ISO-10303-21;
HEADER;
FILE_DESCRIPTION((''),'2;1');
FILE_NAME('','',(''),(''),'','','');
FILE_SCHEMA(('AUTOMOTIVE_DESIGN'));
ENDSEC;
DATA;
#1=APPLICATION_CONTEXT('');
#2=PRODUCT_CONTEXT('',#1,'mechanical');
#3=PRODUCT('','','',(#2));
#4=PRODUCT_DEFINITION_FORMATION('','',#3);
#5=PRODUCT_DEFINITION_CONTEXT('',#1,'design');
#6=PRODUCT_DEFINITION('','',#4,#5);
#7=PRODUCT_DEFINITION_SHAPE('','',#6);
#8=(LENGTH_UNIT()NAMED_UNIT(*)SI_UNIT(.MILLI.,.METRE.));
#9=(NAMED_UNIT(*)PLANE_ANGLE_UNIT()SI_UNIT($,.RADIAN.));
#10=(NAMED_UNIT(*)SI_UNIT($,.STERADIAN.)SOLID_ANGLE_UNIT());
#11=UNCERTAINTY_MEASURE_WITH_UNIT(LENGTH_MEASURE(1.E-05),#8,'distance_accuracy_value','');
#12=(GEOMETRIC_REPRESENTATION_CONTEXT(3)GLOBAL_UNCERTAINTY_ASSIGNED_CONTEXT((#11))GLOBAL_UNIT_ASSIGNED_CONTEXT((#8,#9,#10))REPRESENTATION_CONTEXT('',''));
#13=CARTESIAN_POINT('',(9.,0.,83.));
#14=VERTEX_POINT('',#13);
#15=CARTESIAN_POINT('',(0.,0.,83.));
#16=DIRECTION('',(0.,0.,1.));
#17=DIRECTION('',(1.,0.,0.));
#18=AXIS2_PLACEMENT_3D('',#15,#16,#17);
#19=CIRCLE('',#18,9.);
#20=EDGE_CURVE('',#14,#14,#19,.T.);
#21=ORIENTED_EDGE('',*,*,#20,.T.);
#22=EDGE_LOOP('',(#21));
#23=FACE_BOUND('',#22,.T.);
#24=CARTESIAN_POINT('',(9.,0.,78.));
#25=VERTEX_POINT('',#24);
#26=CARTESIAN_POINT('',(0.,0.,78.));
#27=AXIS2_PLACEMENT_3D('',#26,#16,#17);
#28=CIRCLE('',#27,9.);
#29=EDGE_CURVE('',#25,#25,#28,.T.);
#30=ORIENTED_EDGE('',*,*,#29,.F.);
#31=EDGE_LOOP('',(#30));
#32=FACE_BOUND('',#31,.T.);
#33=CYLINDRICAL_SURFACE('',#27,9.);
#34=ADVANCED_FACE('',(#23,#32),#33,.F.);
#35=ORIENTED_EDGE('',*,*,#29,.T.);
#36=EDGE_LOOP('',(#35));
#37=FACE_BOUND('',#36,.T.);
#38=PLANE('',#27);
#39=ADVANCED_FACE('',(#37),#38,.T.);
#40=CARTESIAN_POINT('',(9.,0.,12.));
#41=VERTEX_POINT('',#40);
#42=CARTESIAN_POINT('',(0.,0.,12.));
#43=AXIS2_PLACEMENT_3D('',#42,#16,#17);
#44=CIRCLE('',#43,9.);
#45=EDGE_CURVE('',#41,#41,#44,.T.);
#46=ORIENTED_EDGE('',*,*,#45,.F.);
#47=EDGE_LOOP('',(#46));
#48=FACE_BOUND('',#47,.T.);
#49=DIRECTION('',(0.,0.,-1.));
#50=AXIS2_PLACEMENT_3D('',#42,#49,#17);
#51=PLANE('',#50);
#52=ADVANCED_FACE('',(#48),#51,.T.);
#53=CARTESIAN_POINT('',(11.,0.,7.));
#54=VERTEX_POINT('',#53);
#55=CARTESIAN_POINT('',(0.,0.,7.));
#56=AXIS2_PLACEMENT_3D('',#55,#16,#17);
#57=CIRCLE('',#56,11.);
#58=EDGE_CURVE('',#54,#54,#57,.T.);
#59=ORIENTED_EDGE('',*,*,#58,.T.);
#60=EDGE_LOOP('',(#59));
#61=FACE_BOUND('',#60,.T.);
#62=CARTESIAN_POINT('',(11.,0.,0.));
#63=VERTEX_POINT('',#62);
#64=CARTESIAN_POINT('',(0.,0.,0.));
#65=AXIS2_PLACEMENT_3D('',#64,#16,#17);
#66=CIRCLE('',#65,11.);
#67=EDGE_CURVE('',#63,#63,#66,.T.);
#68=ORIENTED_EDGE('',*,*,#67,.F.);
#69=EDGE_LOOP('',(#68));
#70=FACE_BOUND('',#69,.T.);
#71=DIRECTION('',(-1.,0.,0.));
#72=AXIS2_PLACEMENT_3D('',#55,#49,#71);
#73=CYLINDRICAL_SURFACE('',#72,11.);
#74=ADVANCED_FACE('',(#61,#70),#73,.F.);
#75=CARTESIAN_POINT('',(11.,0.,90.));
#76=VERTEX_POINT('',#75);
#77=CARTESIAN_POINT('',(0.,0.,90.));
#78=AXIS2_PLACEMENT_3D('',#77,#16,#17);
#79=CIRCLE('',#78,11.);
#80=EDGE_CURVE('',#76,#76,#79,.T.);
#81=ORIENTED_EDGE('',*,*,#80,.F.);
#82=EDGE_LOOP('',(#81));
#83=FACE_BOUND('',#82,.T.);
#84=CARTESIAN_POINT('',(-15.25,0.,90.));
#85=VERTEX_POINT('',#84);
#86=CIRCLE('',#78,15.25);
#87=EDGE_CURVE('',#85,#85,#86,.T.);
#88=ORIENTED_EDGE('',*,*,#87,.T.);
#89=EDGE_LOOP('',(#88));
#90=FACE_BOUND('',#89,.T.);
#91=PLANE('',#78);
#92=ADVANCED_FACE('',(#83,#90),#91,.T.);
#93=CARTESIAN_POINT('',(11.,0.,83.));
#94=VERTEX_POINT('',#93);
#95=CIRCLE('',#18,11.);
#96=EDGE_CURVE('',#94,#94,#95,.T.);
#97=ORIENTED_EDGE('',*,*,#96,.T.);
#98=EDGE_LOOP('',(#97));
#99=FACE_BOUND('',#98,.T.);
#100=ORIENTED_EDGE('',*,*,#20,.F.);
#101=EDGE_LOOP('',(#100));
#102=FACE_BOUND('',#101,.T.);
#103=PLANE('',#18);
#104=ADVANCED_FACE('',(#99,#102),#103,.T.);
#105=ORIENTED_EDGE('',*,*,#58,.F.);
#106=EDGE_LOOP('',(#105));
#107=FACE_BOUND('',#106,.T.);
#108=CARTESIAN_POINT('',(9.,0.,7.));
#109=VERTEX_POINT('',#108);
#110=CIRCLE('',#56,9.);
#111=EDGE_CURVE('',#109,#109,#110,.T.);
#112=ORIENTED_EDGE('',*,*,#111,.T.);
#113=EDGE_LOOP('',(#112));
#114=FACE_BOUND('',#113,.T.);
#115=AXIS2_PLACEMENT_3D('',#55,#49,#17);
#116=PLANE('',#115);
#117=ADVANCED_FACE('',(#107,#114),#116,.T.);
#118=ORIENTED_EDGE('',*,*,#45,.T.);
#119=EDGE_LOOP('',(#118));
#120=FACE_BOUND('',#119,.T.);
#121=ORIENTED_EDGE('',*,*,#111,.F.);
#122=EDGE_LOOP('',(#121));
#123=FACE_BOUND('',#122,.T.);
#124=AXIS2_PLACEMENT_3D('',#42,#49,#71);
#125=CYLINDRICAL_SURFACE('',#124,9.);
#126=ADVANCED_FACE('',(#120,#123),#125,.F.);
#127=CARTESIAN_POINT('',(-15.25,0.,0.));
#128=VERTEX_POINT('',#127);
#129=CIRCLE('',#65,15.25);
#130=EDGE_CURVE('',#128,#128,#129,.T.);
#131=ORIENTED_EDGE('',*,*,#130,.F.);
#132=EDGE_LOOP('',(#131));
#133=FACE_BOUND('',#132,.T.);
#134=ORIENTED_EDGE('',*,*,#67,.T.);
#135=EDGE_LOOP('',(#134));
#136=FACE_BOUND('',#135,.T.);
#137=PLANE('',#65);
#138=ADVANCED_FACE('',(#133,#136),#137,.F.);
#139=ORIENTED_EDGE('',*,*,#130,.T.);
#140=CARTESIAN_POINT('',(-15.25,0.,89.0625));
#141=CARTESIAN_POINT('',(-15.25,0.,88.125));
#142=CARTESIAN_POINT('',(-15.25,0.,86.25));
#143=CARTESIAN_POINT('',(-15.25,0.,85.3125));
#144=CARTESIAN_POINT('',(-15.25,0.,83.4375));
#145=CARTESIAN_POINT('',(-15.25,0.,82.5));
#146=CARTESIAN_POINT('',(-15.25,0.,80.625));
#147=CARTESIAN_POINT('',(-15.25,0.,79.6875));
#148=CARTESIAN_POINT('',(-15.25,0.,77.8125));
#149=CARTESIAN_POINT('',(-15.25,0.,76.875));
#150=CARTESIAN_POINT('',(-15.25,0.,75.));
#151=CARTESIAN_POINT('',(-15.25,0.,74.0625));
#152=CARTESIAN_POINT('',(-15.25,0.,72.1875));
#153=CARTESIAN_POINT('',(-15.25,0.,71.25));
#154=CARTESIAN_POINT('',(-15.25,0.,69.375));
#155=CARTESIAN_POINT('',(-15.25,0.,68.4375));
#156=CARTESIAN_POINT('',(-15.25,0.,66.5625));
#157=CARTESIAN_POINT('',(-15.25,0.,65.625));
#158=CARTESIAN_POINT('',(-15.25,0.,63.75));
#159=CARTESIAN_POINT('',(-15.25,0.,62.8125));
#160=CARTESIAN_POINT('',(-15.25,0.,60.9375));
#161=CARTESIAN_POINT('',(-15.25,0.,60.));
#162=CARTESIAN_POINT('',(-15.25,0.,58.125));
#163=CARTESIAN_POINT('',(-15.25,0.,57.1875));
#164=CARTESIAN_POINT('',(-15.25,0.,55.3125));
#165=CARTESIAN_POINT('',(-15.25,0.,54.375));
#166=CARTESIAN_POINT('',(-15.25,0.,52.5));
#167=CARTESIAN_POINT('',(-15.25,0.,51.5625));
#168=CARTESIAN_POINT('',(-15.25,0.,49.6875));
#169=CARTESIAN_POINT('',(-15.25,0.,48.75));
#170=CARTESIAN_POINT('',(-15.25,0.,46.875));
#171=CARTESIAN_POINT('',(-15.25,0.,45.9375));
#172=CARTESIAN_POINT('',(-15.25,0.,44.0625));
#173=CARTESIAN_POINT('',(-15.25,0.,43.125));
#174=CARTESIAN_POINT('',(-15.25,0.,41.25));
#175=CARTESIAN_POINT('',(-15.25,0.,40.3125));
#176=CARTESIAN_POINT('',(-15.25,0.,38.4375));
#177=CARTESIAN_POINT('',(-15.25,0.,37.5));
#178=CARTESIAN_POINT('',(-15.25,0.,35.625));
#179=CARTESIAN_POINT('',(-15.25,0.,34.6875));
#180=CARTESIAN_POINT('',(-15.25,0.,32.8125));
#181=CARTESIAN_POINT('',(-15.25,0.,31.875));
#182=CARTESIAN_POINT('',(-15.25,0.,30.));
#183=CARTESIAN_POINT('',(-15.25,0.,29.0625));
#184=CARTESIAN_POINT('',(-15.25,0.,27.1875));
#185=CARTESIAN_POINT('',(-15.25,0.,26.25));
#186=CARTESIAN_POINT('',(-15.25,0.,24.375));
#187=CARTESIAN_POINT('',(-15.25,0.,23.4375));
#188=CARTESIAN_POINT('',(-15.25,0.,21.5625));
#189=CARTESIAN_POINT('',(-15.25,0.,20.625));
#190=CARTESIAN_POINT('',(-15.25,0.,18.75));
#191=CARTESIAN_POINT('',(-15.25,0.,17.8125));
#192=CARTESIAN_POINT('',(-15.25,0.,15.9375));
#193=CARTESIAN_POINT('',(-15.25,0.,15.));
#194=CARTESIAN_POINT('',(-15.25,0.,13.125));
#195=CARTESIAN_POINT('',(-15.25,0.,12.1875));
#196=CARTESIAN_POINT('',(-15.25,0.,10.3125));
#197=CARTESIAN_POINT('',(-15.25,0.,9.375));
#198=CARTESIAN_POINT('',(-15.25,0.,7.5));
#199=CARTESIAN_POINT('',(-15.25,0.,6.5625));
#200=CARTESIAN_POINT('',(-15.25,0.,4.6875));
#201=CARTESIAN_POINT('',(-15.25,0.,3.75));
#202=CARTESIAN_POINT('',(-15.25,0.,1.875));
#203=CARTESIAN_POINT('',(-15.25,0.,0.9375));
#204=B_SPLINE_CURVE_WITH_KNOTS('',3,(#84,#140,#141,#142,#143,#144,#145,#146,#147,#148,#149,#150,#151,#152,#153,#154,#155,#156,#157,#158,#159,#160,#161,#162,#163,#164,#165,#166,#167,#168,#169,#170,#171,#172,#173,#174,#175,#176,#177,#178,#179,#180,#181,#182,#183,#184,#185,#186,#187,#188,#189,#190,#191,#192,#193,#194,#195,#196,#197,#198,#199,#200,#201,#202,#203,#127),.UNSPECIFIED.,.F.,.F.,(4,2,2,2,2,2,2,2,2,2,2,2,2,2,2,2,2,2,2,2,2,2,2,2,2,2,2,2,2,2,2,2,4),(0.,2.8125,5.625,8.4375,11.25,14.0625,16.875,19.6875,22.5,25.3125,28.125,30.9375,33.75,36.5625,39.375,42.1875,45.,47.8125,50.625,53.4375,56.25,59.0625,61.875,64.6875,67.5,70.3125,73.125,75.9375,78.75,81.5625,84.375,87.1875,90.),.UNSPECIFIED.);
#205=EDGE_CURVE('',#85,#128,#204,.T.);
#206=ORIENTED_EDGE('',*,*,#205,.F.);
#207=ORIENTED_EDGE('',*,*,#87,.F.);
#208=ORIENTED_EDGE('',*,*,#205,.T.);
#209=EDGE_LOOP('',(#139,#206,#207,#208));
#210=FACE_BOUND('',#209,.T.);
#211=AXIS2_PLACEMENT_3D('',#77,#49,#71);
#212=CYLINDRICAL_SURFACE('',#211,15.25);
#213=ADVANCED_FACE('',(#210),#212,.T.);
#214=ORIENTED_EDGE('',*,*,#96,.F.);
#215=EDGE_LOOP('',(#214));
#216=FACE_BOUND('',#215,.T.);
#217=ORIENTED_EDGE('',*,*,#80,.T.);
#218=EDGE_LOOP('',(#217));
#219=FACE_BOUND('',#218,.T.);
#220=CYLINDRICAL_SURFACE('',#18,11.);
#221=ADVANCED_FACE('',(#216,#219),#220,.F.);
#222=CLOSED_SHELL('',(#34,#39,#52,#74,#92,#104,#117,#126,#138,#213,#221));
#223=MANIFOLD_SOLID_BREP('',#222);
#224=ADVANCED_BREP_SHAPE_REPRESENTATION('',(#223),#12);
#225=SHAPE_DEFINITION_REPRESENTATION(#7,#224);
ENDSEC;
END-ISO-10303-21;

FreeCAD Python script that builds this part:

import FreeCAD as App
import Part
import Sketcher
from FreeCAD import Vector
Q = App.Units.Quantity

doc = App.newDocument("Part")
body = doc.addObject("PartDesign::Body", "Body")

sketch1 = doc.addObject("Sketcher::SketchObject", "Sketch")
body.addObject(sketch1)
sketch1.AttachmentSupport = (doc.XY_Plane, [""])
sketch1.MapMode = "FlatFace"
sketch1.addGeometry(Part.Circle(Vector(0, 0, 0), Vector(0, 0, 1), 15.25), False)
sketch1.addConstraint([
    Sketcher.Constraint("Coincident", 0, 3, -1, 1),
    Sketcher.Constraint("Diameter", 0, Q("30.5 mm")),
])
pad1 = doc.addObject("PartDesign::Pad", "Pad")
body.addObject(pad1)
pad1.Profile = sketch1
pad1.Length = 90

sketch2 = doc.addObject("Sketcher::SketchObject", "Sketch001")
body.addObject(sketch2)
sketch2.AttachmentSupport = (doc.XY_Plane, [""])
sketch2.MapMode = "FlatFace"
sketch2.AttachmentOffset = App.Placement(Vector(0, 0, 90), App.Rotation())
sketch2.addGeometry(Part.Circle(Vector(0, 0, 0), Vector(0, 0, 1), 11), False)
sketch2.addConstraint([
    Sketcher.Constraint("Coincident", 0, 3, -1, 1),
    Sketcher.Constraint("Diameter", 0, Q("22 mm")),
])
pocket1 = doc.addObject("PartDesign::Pocket", "Pocket")
body.addObject(pocket1)
pocket1.Profile = sketch2
pocket1.Length = 7

sketch3 = doc.addObject("Sketcher::SketchObject", "Sketch002")
body.addObject(sketch3)
sketch3.AttachmentSupport = (doc.XY_Plane, [""])
sketch3.MapMode = "FlatFace"
sketch3.AttachmentOffset = App.Placement(Vector(0, 0, 83), App.Rotation())
sketch3.addGeometry(Part.Circle(Vector(0, 0, 0), Vector(0, 0, 1), 9), False)
sketch3.addConstraint([
    Sketcher.Constraint("Coincident", 0, 3, -1, 1),
    Sketcher.Constraint("Diameter", 0, Q("18 mm")),
])
pocket2 = doc.addObject("PartDesign::Pocket", "Pocket001")
body.addObject(pocket2)
pocket2.Profile = sketch3
pocket2.Length = 5
doc.recompute()

datumplane = doc.addObject("PartDesign::Plane", "DatumPlane")
body.addObject(datumplane)
datumplane.AttachmentSupport = (doc.XY_Plane, [""])
datumplane.MapMode = "FlatFace"
datumplane.AttachmentOffset = App.Placement(Vector(0, 0, 45), App.Rotation())
mirrored = doc.addObject("PartDesign::Mirrored", "Mirrored")
body.addObject(mirrored)
mirrored.Originals = [pocket1, pocket2]
mirrored.MirrorPlane = (datumplane, [""])
body.Tip = mirrored

doc.recompute()
